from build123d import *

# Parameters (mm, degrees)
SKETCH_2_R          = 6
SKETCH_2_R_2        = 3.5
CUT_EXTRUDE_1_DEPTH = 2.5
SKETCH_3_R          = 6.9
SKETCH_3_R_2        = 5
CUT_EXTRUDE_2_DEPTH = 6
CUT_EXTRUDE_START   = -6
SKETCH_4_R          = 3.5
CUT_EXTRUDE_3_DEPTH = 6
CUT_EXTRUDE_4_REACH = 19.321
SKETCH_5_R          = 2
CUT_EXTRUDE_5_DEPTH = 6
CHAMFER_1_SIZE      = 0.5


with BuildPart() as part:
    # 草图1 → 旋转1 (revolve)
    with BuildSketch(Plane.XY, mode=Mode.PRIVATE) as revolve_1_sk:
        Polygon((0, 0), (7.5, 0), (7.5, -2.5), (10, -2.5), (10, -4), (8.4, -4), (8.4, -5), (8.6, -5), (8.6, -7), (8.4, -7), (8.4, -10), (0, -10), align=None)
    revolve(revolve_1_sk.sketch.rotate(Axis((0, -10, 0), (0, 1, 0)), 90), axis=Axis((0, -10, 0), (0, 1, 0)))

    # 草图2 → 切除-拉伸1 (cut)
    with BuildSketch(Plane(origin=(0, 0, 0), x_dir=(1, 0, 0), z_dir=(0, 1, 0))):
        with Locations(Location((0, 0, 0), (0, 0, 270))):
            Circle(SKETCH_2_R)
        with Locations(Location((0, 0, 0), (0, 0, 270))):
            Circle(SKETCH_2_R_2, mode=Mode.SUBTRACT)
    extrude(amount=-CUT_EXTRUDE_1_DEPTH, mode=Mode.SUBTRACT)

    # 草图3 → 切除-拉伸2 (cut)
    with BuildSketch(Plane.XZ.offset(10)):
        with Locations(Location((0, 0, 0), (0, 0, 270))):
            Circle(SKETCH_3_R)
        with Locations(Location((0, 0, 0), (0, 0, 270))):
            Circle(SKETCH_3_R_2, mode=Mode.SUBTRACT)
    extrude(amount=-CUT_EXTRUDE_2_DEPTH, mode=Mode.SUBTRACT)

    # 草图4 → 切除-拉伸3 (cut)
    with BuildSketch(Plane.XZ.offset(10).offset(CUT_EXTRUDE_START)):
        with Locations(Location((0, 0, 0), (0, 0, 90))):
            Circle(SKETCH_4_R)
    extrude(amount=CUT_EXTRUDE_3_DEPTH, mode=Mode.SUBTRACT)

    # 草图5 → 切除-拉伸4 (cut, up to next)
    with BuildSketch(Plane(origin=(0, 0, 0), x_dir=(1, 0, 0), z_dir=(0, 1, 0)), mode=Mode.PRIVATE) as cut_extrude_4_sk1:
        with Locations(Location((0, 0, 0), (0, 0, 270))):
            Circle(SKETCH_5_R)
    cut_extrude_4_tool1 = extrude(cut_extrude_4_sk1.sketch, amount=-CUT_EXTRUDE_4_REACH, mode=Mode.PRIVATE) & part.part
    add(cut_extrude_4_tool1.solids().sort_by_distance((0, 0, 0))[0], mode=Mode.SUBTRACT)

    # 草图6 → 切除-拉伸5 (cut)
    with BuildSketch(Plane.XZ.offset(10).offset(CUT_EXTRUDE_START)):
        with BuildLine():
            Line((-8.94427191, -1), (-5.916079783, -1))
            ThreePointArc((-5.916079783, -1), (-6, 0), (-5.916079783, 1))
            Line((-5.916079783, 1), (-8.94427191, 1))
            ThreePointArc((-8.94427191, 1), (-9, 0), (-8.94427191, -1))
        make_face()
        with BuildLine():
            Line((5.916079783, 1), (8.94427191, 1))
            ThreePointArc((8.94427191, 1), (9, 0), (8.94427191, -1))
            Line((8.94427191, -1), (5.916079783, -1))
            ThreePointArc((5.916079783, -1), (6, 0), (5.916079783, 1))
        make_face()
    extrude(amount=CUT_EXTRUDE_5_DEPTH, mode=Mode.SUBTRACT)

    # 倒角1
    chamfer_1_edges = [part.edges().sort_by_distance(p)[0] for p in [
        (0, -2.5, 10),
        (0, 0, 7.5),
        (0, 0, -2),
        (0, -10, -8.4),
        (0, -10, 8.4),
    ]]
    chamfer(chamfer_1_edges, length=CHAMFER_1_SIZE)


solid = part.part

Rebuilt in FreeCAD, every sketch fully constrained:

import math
import FreeCAD as App
import Part
import Sketcher
from FreeCAD import Vector
Q = App.Units.Quantity


def edges_at(feature, points):
    """Names of the edges that pass closest to the given points."""
    edges = feature.Shape.Edges
    near = lambda p: min(range(len(edges)), key=lambda i: edges[i].distToShape(Part.Vertex(*p))[0])
    return sorted({f"Edge{near(p) + 1}" for p in points})

doc = App.newDocument("Part")
body = doc.addObject("PartDesign::Body", "Body")

# Sketch on XY plane
sketch1 = body.newObject("Sketcher::SketchObject", "Sketch")
sketch1.AttachmentSupport = (doc.getObject("XY_Plane"), [""])
sketch1.MapMode = "FlatFace"
sketch1.addGeometry([
    Part.LineSegment(Vector(7.5, 0, 0), Vector(0, 0, 0)),  # 0
    Part.LineSegment(Vector(0, 0, 0), Vector(0, -10, 0)),  # 1
    Part.LineSegment(Vector(0, -10, 0), Vector(8.4, -10, 0)),  # 2
    Part.LineSegment(Vector(8.4, -10, 0), Vector(8.4, -7, 0)),  # 3
    Part.LineSegment(Vector(8.4, -7, 0), Vector(8.6, -7, 0)),  # 4
    Part.LineSegment(Vector(8.6, -7, 0), Vector(8.6, -5, 0)),  # 5
    Part.LineSegment(Vector(8.6, -5, 0), Vector(8.4, -5, 0)),  # 6
    Part.LineSegment(Vector(8.4, -5, 0), Vector(8.4, -4, 0)),  # 7
    Part.LineSegment(Vector(8.4, -4, 0), Vector(10, -4, 0)),  # 8
    Part.LineSegment(Vector(10, -4, 0), Vector(10, -2.5, 0)),  # 9
    Part.LineSegment(Vector(10, -2.5, 0), Vector(7.5, -2.5, 0)),  # 10
    Part.LineSegment(Vector(7.5, -2.5, 0), Vector(7.5, 0, 0)),  # 11
], False)
sketch1.addConstraint([
    Sketcher.Constraint("Coincident", 0, 2, 1, 1),
    Sketcher.Constraint("Coincident", 1, 2, 2, 1),
    Sketcher.Constraint("Coincident", 2, 2, 3, 1),
    Sketcher.Constraint("Coincident", 3, 2, 4, 1),
    Sketcher.Constraint("Coincident", 4, 2, 5, 1),
    Sketcher.Constraint("Coincident", 5, 2, 6, 1),
    Sketcher.Constraint("Coincident", 6, 2, 7, 1),
    Sketcher.Constraint("Coincident", 7, 2, 8, 1),
    Sketcher.Constraint("Coincident", 8, 2, 9, 1),
    Sketcher.Constraint("Coincident", 9, 2, 10, 1),
    Sketcher.Constraint("Coincident", 10, 2, 11, 1),
    Sketcher.Constraint("Coincident", 11, 2, 0, 1),
    Sketcher.Constraint("Horizontal", 0),
    Sketcher.Constraint("Vertical", 1),
    Sketcher.Constraint("Horizontal", 2),
    Sketcher.Constraint("Vertical", 3),
    Sketcher.Constraint("Horizontal", 4),
    Sketcher.Constraint("Vertical", 5),
    Sketcher.Constraint("Horizontal", 6),
    Sketcher.Constraint("Vertical", 7),
    Sketcher.Constraint("Horizontal", 8),
    Sketcher.Constraint("Vertical", 9),
    Sketcher.Constraint("Horizontal", 10),
    Sketcher.Constraint("Vertical", 11),
    Sketcher.Constraint("Coincident", 0, 2, -1, 1),
    Sketcher.Constraint("Vertical", 3, 2, 6, 2),
    Sketcher.Constraint("Equal", 10, 11),
    Sketcher.Constraint("DistanceY", 1, 2, 1, 1, Q("10 mm")),
    Sketcher.Constraint("DistanceY", 3, 1, 3, 2, Q("3 mm")),
    Sketcher.Constraint("DistanceY", 5, 1, 5, 2, Q("2 mm")),
    Sketcher.Constraint("DistanceY", 7, 1, 7, 2, Q("1 mm")),
    Sketcher.Constraint("DistanceX", 0, 2, 0, 1, Q("7.5 mm")),
    Sketcher.Constraint("DistanceX", 2, 1, 2, 2, Q("8.4 mm")),
    Sketcher.Constraint("DistanceX", 4, 1, 4, 2, Q("0.2 mm")),
    Sketcher.Constraint("DistanceX", 8, 1, 8, 2, Q("1.6 mm")),
])
revolution = body.newObject("PartDesign::Revolution", "Revolution")
revolution.Profile = sketch1
revolution.ReferenceAxis = (sketch1, ["V_Axis"])
revolution.Angle = 360

# Sketch on XZ plane
sketch2 = body.newObject("Sketcher::SketchObject", "Sketch001")
sketch2.AttachmentSupport = (doc.getObject("XZ_Plane"), [""])
sketch2.MapMode = "FlatFace"
sketch2.addGeometry([
    Part.Circle(Vector(0, 0, 0), Vector(0, 0, 1), 6),
    Part.Circle(Vector(0, 0, 0), Vector(0, 0, 1), 3.5),
], False)
sketch2.addConstraint([
    Sketcher.Constraint("Coincident", 0, 3, -1, 1),
    Sketcher.Constraint("Coincident", 1, 3, -1, 1),
    Sketcher.Constraint("Diameter", 0, Q("12 mm")),
    Sketcher.Constraint("Diameter", 1, Q("7 mm")),
])
pocket1 = body.newObject("PartDesign::Pocket", "Pocket")
pocket1.Profile = sketch2
pocket1.Length = 2.5
pocket1.Reversed = True

# Sketch on XZ plane
sketch3 = body.newObject("Sketcher::SketchObject", "Sketch002")
sketch3.AttachmentSupport = (doc.getObject("XZ_Plane"), [""])
sketch3.MapMode = "FlatFace"
sketch3.AttachmentOffset = App.Placement(Vector(0, 0, 10), App.Rotation())
sketch3.addGeometry([
    Part.Circle(Vector(0, 0, 0), Vector(0, 0, 1), 7),
    Part.Circle(Vector(0, 0, 0), Vector(0, 0, 1), 5),
], False)
sketch3.addConstraint([
    Sketcher.Constraint("Coincident", 0, 3, -1, 1),
    Sketcher.Constraint("Coincident", 1, 3, -1, 1),
    Sketcher.Constraint("Diameter", 1, Q("10 mm")),
    Sketcher.Constraint("Diameter", 0, Q("13.8 mm")),
])
pocket2 = body.newObject("PartDesign::Pocket", "Pocket001")
pocket2.Profile = sketch3
pocket2.Length = 6

# Sketch on XZ plane
sketch4 = body.newObject("Sketcher::SketchObject", "Sketch003")
sketch4.AttachmentSupport = (doc.getObject("XZ_Plane"), [""])
sketch4.MapMode = "FlatFace"
sketch4.AttachmentOffset = App.Placement(Vector(0, 0, 4), App.Rotation())
sketch4.addGeometry(Part.Circle(Vector(0, 0, 0), Vector(0, 0, 1), 3.5), False)
sketch4.addConstraint([
    Sketcher.Constraint("Coincident", 0, 3, -1, 1),
    Sketcher.Constraint("Diameter", 0, Q("7 mm")),
])
pocket3 = body.newObject("PartDesign::Pocket", "Pocket002")
pocket3.Profile = sketch4
pocket3.Length = 6
pocket3.Reversed = True

# Sketch on XZ plane
sketch5 = body.newObject("Sketcher::SketchObject", "Sketch004")
sketch5.AttachmentSupport = (doc.getObject("XZ_Plane"), [""])
sketch5.MapMode = "FlatFace"
sketch5.addGeometry(Part.Circle(Vector(0, 0, 0), Vector(0, 0, 1), 2), False)
sketch5.addConstraint([
    Sketcher.Constraint("Coincident", 0, 3, -1, 1),
    Sketcher.Constraint("Diameter", 0, Q("4 mm")),
])
pocket4 = body.newObject("PartDesign::Pocket", "Pocket003")
pocket4.Profile = sketch5
pocket4.Type = "UpToFirst"
pocket4.Reversed = True

# Sketch on XZ plane
sketch6 = body.newObject("Sketcher::SketchObject", "Sketch005")
sketch6.AttachmentSupport = (doc.getObject("XZ_Plane"), [""])
sketch6.MapMode = "FlatFace"
sketch6.AttachmentOffset = App.Placement(Vector(0, 0, 4), App.Rotation())
sketch6.addGeometry([
    Part.LineSegment(Vector(-8.9, -1, 0), Vector(-5.9, -1, 0)),  # 0
    Part.ArcOfCircle(Part.Circle(Vector(0, 0, 0), Vector(0, 0, 1), 6), math.radians(170.41), math.radians(189.59)),  # 1
    Part.LineSegment(Vector(-5.9, 1, 0), Vector(-8.9, 1, 0)),  # 2
    Part.ArcOfCircle(Part.Circle(Vector(0, 0, 0), Vector(0, 0, 1), 9), math.radians(173.62), math.radians(186.38)),  # 3
    Part.LineSegment(Vector(8.9, 1, 0), Vector(5.9, 1, 0)),  # 4
    Part.ArcOfCircle(Part.Circle(Vector(0, 0, 0), Vector(0, 0, 1), 6), math.radians(-9.59), math.radians(9.59)),  # 5
    Part.LineSegment(Vector(5.9, -1, 0), Vector(8.9, -1, 0)),  # 6
    Part.ArcOfCircle(Part.Circle(Vector(0, 0, 0), Vector(0, 0, 1), 9), math.radians(-6.38), math.radians(6.38)),  # 7
], False)
sketch6.addConstraint([
    Sketcher.Constraint("Coincident", 0, 2, 1, 2),
    Sketcher.Constraint("Coincident", 1, 1, 2, 1),
    Sketcher.Constraint("Coincident", 2, 2, 3, 1),
    Sketcher.Constraint("Coincident", 3, 2, 0, 1),
    Sketcher.Constraint("Coincident", 4, 2, 5, 2),
    Sketcher.Constraint("Coincident", 5, 1, 6, 1),
    Sketcher.Constraint("Coincident", 6, 2, 7, 1),
    Sketcher.Constraint("Coincident", 7, 2, 4, 1),
    Sketcher.Constraint("Horizontal", 0),
    Sketcher.Constraint("Horizontal", 2),
    Sketcher.Constraint("Horizontal", 4),
    Sketcher.Constraint("Horizontal", 6),
    Sketcher.Constraint("Coincident", 1, 3, -1, 1),
    Sketcher.Constraint("Coincident", 3, 3, -1, 1),
    Sketcher.Constraint("Coincident", 5, 3, -1, 1),
    Sketcher.Constraint("Coincident", 7, 3, -1, 1),
    Sketcher.Constraint("Equal", 1, 5),
    Sketcher.Constraint("Equal", 3, 7),
    Sketcher.Constraint("Horizontal", 2, 2, 4, 2),
    Sketcher.Constraint("Horizontal", 3, 2, 5, 1),
    Sketcher.Constraint("Vertical", 0, 2, 1, 1),
    Sketcher.Constraint("Radius", 1, Q("6 mm")),
    Sketcher.Constraint("Radius", 3, Q("9 mm")),
    Sketcher.Constraint("DistanceY", 0, 2, -1, 1, Q("1 mm")),
])
pocket5 = body.newObject("PartDesign::Pocket", "Pocket004")
pocket5.Profile = sketch6
pocket5.Length = 6
pocket5.Reversed = True
doc.recompute()

chamfer = body.newObject("PartDesign::Chamfer", "Chamfer")
chamfer.Base = (pocket5, edges_at(pocket5, [
    (0, -2.5, 10),
    (0, 0, 7.5),
    (0, 0, -2),
    (0, -10, -8.4),
    (0, -10, 8.4),
]))
chamfer.Size = 0.5

doc.recompute()
